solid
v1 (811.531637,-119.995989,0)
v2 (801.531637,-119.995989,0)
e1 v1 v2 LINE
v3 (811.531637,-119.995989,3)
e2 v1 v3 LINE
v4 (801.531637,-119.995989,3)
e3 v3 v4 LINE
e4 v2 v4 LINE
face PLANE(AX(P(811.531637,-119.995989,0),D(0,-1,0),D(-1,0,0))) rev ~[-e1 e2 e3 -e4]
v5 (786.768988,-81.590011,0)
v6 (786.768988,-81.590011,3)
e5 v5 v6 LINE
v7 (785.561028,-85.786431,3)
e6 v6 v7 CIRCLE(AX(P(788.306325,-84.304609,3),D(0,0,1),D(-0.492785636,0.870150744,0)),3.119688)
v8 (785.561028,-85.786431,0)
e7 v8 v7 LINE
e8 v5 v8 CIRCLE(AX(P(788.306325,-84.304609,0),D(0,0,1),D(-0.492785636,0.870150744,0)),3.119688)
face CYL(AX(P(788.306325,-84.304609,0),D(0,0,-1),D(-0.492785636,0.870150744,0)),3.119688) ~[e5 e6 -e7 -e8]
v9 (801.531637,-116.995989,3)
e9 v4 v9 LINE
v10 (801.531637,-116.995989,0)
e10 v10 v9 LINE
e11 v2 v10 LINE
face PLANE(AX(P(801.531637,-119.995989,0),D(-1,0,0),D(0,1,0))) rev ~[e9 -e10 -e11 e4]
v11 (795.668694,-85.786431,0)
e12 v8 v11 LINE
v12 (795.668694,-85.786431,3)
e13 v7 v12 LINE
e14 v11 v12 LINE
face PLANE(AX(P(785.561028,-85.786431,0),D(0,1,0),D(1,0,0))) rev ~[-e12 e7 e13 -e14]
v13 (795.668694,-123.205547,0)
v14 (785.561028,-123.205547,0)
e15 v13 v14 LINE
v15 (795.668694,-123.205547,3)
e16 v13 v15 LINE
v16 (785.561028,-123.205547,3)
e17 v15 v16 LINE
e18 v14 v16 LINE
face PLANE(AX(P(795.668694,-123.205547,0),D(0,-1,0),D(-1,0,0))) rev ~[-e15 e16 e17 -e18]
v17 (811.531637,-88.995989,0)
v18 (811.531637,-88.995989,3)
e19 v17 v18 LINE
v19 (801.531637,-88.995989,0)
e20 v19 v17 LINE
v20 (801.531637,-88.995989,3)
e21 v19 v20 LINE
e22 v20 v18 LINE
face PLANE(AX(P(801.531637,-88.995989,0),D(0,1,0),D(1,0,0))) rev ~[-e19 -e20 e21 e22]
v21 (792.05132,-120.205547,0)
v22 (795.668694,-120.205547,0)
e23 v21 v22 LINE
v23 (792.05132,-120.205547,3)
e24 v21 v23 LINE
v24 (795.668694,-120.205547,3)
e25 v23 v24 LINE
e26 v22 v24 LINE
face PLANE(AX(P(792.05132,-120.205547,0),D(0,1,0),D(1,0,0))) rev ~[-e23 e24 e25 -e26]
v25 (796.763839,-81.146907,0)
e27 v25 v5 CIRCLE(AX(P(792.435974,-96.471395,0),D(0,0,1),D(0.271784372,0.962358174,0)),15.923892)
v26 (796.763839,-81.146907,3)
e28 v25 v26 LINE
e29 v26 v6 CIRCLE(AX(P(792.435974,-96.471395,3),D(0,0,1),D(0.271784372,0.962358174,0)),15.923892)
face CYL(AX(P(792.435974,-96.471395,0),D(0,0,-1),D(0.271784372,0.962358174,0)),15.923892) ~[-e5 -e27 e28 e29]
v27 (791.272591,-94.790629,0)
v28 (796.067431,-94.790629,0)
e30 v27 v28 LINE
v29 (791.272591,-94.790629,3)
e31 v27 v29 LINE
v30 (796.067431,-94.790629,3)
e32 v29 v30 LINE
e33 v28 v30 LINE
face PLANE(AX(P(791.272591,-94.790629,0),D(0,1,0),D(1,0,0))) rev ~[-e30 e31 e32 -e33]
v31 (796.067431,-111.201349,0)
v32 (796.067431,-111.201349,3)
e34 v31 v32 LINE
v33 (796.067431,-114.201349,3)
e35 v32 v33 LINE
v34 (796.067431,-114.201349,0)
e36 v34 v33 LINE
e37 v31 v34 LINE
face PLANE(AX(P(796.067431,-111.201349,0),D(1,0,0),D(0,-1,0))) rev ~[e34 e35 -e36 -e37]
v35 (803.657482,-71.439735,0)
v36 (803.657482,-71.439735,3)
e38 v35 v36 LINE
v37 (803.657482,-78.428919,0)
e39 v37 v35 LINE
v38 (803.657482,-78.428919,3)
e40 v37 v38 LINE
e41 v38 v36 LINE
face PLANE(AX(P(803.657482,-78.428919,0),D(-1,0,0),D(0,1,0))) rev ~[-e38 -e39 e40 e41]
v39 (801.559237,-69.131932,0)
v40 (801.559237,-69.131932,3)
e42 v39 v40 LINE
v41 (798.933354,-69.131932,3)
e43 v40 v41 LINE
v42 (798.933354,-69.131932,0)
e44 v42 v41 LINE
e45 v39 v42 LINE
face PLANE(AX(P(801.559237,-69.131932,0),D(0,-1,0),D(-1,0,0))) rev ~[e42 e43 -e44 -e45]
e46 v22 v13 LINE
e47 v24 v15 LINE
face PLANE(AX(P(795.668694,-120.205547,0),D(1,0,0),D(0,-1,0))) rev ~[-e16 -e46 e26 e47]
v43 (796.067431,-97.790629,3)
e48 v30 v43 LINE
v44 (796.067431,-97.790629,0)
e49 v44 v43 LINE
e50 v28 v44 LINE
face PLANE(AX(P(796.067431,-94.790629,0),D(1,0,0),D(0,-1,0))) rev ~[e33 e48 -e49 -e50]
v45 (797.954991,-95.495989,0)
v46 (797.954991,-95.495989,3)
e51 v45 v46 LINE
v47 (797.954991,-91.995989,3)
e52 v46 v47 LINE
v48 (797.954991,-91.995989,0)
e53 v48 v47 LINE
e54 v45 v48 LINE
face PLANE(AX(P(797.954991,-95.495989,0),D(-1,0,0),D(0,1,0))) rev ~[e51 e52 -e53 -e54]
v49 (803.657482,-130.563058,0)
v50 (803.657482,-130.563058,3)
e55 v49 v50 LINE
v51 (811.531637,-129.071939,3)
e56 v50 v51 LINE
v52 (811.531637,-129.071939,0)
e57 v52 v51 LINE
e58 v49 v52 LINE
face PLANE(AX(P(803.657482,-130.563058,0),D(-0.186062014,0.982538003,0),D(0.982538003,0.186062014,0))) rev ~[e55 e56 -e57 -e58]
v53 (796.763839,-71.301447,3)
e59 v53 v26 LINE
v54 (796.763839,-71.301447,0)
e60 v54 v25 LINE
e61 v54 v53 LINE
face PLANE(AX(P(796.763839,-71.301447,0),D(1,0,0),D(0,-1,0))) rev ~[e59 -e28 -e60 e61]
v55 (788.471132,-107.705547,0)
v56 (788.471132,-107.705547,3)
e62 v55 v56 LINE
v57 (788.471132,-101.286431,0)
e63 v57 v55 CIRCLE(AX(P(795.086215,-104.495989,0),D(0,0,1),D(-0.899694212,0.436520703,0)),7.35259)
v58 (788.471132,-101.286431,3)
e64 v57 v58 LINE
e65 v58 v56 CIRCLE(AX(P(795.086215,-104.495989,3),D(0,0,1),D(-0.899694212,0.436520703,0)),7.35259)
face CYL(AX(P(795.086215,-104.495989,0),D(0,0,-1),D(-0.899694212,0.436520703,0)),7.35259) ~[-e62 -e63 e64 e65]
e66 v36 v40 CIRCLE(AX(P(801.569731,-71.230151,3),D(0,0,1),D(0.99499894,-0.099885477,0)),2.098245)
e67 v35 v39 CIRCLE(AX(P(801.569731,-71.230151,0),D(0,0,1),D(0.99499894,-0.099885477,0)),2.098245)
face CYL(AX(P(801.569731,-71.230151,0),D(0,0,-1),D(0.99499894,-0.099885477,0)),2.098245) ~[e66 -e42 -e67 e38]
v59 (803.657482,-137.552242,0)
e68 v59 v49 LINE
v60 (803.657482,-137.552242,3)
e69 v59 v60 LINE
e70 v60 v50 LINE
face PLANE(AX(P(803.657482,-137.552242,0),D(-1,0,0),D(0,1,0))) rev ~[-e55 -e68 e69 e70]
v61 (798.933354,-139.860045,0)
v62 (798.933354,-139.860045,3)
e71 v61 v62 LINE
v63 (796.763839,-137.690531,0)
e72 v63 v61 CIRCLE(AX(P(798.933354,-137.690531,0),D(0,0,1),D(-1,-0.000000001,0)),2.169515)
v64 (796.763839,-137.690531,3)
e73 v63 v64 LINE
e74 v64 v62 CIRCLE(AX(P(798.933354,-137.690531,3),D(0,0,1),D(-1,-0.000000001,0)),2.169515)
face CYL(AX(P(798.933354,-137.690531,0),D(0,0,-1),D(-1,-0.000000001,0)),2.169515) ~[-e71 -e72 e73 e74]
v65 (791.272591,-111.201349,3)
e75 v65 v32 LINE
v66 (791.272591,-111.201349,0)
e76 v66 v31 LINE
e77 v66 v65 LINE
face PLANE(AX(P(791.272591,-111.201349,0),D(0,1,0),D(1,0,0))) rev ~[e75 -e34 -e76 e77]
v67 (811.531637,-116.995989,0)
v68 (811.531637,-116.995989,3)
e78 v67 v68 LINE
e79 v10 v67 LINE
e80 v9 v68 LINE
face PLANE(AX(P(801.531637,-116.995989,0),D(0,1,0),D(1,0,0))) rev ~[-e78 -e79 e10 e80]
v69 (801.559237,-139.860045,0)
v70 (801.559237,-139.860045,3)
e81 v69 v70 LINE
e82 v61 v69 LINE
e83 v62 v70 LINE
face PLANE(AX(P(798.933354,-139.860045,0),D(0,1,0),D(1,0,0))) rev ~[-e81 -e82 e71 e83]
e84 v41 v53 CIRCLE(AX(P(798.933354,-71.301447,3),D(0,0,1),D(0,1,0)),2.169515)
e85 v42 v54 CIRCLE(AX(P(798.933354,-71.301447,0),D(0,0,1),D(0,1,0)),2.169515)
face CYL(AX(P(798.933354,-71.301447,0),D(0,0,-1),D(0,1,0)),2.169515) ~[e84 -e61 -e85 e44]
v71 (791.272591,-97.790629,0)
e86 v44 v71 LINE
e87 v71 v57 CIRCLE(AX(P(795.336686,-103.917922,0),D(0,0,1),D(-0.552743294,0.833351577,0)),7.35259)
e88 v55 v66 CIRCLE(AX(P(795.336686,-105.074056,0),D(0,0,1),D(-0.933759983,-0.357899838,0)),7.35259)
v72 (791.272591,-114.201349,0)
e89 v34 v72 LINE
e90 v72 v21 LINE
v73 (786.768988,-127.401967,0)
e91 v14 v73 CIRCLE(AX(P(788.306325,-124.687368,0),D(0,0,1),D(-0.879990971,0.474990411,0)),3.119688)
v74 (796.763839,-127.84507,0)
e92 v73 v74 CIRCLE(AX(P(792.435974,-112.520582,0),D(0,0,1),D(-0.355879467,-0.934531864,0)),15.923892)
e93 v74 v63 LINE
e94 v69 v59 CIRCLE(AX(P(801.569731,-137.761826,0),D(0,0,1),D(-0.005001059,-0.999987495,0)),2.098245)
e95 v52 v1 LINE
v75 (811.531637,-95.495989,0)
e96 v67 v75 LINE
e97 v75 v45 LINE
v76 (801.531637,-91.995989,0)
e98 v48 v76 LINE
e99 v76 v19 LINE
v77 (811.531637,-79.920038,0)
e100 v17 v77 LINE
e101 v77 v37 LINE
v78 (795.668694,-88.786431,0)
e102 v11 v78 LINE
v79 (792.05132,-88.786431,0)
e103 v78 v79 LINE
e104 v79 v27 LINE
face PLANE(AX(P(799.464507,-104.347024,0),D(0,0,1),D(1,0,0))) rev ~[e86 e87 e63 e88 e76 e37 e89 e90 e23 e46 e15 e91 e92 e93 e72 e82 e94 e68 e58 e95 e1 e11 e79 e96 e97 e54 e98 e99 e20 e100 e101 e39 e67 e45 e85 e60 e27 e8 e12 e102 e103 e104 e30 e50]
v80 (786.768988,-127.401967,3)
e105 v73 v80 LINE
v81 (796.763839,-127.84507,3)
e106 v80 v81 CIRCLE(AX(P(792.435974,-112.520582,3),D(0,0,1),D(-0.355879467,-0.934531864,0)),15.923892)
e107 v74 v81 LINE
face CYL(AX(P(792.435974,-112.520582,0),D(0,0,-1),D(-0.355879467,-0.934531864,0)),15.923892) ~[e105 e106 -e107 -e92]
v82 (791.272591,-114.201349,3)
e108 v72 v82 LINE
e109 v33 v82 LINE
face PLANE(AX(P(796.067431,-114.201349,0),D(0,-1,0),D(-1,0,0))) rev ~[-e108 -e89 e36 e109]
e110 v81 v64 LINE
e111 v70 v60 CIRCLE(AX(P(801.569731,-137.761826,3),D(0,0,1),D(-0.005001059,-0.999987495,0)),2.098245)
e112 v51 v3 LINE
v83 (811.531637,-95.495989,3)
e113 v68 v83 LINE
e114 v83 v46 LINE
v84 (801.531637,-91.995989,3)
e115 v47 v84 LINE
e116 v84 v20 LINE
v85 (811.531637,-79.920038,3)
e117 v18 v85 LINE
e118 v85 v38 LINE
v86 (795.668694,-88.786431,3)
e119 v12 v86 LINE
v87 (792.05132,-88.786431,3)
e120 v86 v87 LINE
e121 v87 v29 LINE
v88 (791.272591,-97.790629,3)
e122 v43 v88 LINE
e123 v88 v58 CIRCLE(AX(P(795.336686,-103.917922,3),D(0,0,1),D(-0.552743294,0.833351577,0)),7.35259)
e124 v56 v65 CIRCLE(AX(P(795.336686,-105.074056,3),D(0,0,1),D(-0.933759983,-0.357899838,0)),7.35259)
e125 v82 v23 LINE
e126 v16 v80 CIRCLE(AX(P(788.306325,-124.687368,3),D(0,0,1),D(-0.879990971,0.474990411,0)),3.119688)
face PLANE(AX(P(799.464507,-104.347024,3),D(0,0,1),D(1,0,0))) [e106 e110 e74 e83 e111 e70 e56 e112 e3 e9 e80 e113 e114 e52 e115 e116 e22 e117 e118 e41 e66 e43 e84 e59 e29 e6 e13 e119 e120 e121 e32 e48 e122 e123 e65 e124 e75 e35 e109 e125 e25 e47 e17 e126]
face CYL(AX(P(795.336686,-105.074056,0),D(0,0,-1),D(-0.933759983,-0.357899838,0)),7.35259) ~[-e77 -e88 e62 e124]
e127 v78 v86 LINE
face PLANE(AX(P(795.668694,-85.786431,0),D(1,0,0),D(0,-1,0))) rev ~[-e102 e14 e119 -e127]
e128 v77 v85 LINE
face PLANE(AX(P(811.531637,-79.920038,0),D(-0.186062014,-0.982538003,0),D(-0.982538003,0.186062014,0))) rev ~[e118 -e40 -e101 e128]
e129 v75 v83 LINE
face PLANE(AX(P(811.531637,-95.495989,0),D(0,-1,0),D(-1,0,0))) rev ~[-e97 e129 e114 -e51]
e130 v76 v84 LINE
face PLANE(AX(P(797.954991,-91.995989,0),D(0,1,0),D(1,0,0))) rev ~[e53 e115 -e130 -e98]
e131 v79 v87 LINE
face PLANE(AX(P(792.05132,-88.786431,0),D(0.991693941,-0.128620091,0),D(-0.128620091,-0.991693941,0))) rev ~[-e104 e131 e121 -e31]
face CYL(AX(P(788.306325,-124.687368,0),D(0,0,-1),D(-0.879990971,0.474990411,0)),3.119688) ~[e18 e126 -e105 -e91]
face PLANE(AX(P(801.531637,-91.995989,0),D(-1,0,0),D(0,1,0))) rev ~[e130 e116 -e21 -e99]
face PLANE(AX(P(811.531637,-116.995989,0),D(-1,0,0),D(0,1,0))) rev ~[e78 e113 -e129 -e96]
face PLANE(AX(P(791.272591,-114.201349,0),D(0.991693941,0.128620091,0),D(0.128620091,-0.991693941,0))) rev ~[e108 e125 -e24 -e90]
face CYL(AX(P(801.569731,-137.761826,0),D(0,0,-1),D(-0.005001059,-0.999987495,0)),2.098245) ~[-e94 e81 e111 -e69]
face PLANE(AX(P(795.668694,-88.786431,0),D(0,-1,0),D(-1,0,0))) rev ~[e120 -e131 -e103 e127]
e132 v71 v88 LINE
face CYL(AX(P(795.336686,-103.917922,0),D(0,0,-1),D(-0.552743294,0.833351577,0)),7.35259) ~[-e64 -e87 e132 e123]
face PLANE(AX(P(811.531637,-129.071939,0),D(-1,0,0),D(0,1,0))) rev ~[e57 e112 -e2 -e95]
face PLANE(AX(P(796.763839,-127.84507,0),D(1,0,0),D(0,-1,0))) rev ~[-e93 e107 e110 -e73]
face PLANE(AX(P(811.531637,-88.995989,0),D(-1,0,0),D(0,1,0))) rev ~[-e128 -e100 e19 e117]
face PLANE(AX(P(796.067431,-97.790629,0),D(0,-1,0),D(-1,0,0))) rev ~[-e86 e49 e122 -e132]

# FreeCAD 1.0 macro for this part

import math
import FreeCAD as App
import Part
import Sketcher

V = App.Vector
Q = App.Units.Quantity

doc = App.newDocument("Part")
body = doc.addObject("PartDesign::Body", "Body")

sketch1 = doc.addObject("Sketcher::SketchObject", "Sketch")
body.addObject(sketch1)
sketch1.AttachmentSupport = (doc.XY_Plane, [""])
sketch1.MapMode = "FlatFace"
sketch1.addGeometry([
    Part.LineSegment(V(796.1, -94.8, 0), V(796.1, -97.8, 0)),
    Part.LineSegment(V(796.1, -97.8, 0), V(791.3, -97.8, 0)),
    Part.ArcOfCircle(Part.Circle(V(795.3, -103.9, 0), V(0, 0, 1), 7.4), math.radians(124), math.radians(159)),
    Part.ArcOfCircle(Part.Circle(V(795.1, -104.5, 0), V(0, 0, 1), 7.4), math.radians(154), math.radians(206)),
    Part.ArcOfCircle(Part.Circle(V(795.3, -105.1, 0), V(0, 0, 1), 7.4), math.radians(-159), math.radians(-124)),
    Part.LineSegment(V(791.3, -111.2, 0), V(796.1, -111.2, 0)),
    Part.LineSegment(V(796.1, -111.2, 0), V(796.1, -114.2, 0)),
    Part.LineSegment(V(796.1, -114.2, 0), V(791.3, -114.2, 0)),
    Part.LineSegment(V(791.3, -114.2, 0), V(792.1, -120.2, 0)),
    Part.LineSegment(V(792.1, -120.2, 0), V(795.7, -120.2, 0)),
    Part.LineSegment(V(795.7, -120.2, 0), V(795.7, -123.2, 0)),
    Part.LineSegment(V(795.7, -123.2, 0), V(785.6, -123.2, 0)),
    Part.ArcOfCircle(Part.Circle(V(788.3, -124.7, 0), V(0, 0, 1), 3.1), math.radians(152), math.radians(240)),
    Part.ArcOfCircle(Part.Circle(V(792.4, -112.5, 0), V(0, 0, 1), 15.9), math.radians(-111), math.radians(-74)),
    Part.LineSegment(V(796.8, -127.8, 0), V(796.8, -137.7, 0)),
    Part.ArcOfCircle(Part.Circle(V(798.9, -137.7, 0), V(0, 0, 1), 2.2), math.radians(-180), math.radians(-90)),
    Part.LineSegment(V(798.9, -139.9, 0), V(801.6, -139.9, 0)),
    Part.ArcOfCircle(Part.Circle(V(801.6, -137.8, 0), V(0, 0, 1), 2.1), math.radians(-90), math.radians(6)),
    Part.LineSegment(V(803.7, -137.6, 0), V(803.7, -130.6, 0)),
    Part.LineSegment(V(803.7, -130.6, 0), V(811.5, -129.1, 0)),
    Part.LineSegment(V(811.5, -129.1, 0), V(811.5, -120, 0)),
    Part.LineSegment(V(811.5, -120, 0), V(801.5, -120, 0)),
    Part.LineSegment(V(801.5, -120, 0), V(801.5, -117, 0)),
    Part.LineSegment(V(801.5, -117, 0), V(811.5, -117, 0)),
    Part.LineSegment(V(811.5, -117, 0), V(811.5, -95.5, 0)),
    Part.LineSegment(V(811.5, -95.5, 0), V(798, -95.5, 0)),
    Part.LineSegment(V(798, -95.5, 0), V(798, -92, 0)),
    Part.LineSegment(V(798, -92, 0), V(801.5, -92, 0)),
    Part.LineSegment(V(801.5, -92, 0), V(801.5, -89, 0)),
    Part.LineSegment(V(801.5, -89, 0), V(811.5, -89, 0)),
    Part.LineSegment(V(811.5, -89, 0), V(811.5, -79.9, 0)),
    Part.LineSegment(V(811.5, -79.9, 0), V(803.7, -78.4, 0)),
    Part.LineSegment(V(803.7, -78.4, 0), V(803.7, -71.4, 0)),
    Part.ArcOfCircle(Part.Circle(V(801.6, -71.2, 0), V(0, 0, 1), 2.1), math.radians(-6), math.radians(90)),
    Part.LineSegment(V(801.6, -69.1, 0), V(798.9, -69.1, 0)),
    Part.ArcOfCircle(Part.Circle(V(798.9, -71.3, 0), V(0, 0, 1), 2.2), math.radians(90), math.radians(180)),
    Part.LineSegment(V(796.8, -71.3, 0), V(796.8, -81.1, 0)),
    Part.ArcOfCircle(Part.Circle(V(792.4, -96.5, 0), V(0, 0, 1), 15.9), math.radians(74), math.radians(111)),
    Part.ArcOfCircle(Part.Circle(V(788.3, -84.3, 0), V(0, 0, 1), 3.1), math.radians(120), math.radians(208)),
    Part.LineSegment(V(785.6, -85.8, 0), V(795.7, -85.8, 0)),
    Part.LineSegment(V(795.7, -85.8, 0), V(795.7, -88.8, 0)),
    Part.LineSegment(V(795.7, -88.8, 0), V(792.1, -88.8, 0)),
    Part.LineSegment(V(792.1, -88.8, 0), V(791.3, -94.8, 0)),
    Part.LineSegment(V(791.3, -94.8, 0), V(796.1, -94.8, 0)),
], False)
sketch1.addConstraint([
    Sketcher.Constraint("Coincident", 0, 2, 1, 1),
    Sketcher.Constraint("Coincident", 1, 2, 2, 1),
    Sketcher.Constraint("Coincident", 2, 2, 3, 1),
    Sketcher.Constraint("Coincident", 3, 2, 4, 1),
    Sketcher.Constraint("Coincident", 4, 2, 5, 1),
    Sketcher.Constraint("Coincident", 5, 2, 6, 1),
    Sketcher.Constraint("Coincident", 6, 2, 7, 1),
    Sketcher.Constraint("Coincident", 7, 2, 8, 1),
    Sketcher.Constraint("Coincident", 8, 2, 9, 1),
    Sketcher.Constraint("Coincident", 9, 2, 10, 1),
    Sketcher.Constraint("Coincident", 10, 2, 11, 1),
    Sketcher.Constraint("Coincident", 11, 2, 12, 1),
    Sketcher.Constraint("Coincident", 12, 2, 13, 1),
    Sketcher.Constraint("Coincident", 13, 2, 14, 1),
    Sketcher.Constraint("Tangent", 14, 2, 15, 1),
    Sketcher.Constraint("Tangent", 15, 2, 16, 1),
    Sketcher.Constraint("Coincident", 16, 2, 17, 1),
    Sketcher.Constraint("Coincident", 17, 2, 18, 1),
    Sketcher.Constraint("Coincident", 18, 2, 19, 1),
    Sketcher.Constraint("Coincident", 19, 2, 20, 1),
    Sketcher.Constraint("Coincident", 20, 2, 21, 1),
    Sketcher.Constraint("Coincident", 21, 2, 22, 1),
    Sketcher.Constraint("Coincident", 22, 2, 23, 1),
    Sketcher.Constraint("Coincident", 23, 2, 24, 1),
    Sketcher.Constraint("Coincident", 24, 2, 25, 1),
    Sketcher.Constraint("Coincident", 25, 2, 26, 1),
    Sketcher.Constraint("Coincident", 26, 2, 27, 1),
    Sketcher.Constraint("Coincident", 27, 2, 28, 1),
    Sketcher.Constraint("Coincident", 28, 2, 29, 1),
    Sketcher.Constraint("Coincident", 29, 2, 30, 1),
    Sketcher.Constraint("Coincident", 30, 2, 31, 1),
    Sketcher.Constraint("Coincident", 31, 2, 32, 1),
    Sketcher.Constraint("Coincident", 32, 2, 33, 1),
    Sketcher.Constraint("Coincident", 33, 2, 34, 1),
    Sketcher.Constraint("Tangent", 34, 2, 35, 1),
    Sketcher.Constraint("Tangent", 35, 2, 36, 1),
    Sketcher.Constraint("Coincident", 36, 2, 37, 1),
    Sketcher.Constraint("Coincident", 37, 2, 38, 1),
    Sketcher.Constraint("Coincident", 38, 2, 39, 1),
    Sketcher.Constraint("Coincident", 39, 2, 40, 1),
    Sketcher.Constraint("Coincident", 40, 2, 41, 1),
    Sketcher.Constraint("Coincident", 41, 2, 42, 1),
    Sketcher.Constraint("Coincident", 42, 2, 43, 1),
    Sketcher.Constraint("Coincident", 43, 2, 0, 1),
    Sketcher.Constraint("Vertical", 0),
    Sketcher.Constraint("Horizontal", 1),
    Sketcher.Constraint("Horizontal", 5),
    Sketcher.Constraint("Vertical", 6),
    Sketcher.Constraint("Horizontal", 7),
    Sketcher.Constraint("Horizontal", 9),
    Sketcher.Constraint("Vertical", 10),
    Sketcher.Constraint("Horizontal", 11),
    Sketcher.Constraint("Vertical", 14),
    Sketcher.Constraint("Horizontal", 16),
    Sketcher.Constraint("Vertical", 18),
    Sketcher.Constraint("Vertical", 20),
    Sketcher.Constraint("Horizontal", 21),
    Sketcher.Constraint("Vertical", 22),
    Sketcher.Constraint("Horizontal", 23),
    Sketcher.Constraint("Vertical", 24),
    Sketcher.Constraint("Horizontal", 25),
    Sketcher.Constraint("Vertical", 26),
    Sketcher.Constraint("Horizontal", 27),
    Sketcher.Constraint("Vertical", 28),
    Sketcher.Constraint("Horizontal", 29),
    Sketcher.Constraint("Vertical", 30),
    Sketcher.Constraint("Vertical", 32),
    Sketcher.Constraint("Horizontal", 34),
    Sketcher.Constraint("Vertical", 36),
    Sketcher.Constraint("Horizontal", 39),
    Sketcher.Constraint("Vertical", 40),
    Sketcher.Constraint("Horizontal", 41),
    Sketcher.Constraint("Horizontal", 43),
    Sketcher.Constraint("Equal", 2, 3),
    Sketcher.Constraint("Equal", 3, 4),
    Sketcher.Constraint("Equal", 17, 33),
    Sketcher.Constraint("Equal", 15, 35),
    Sketcher.Constraint("Equal", 13, 37),
    Sketcher.Constraint("Equal", 12, 38),
    Sketcher.Constraint("Vertical", 2, 3, 4, 3),
    Sketcher.Constraint("Vertical", 17, 3, 33, 3),
    Sketcher.Constraint("Vertical", 15, 3, 35, 3),
    Sketcher.Constraint("Vertical", 13, 3, 37, 3),
    Sketcher.Constraint("Vertical", 12, 3, 38, 3),
    Sketcher.Constraint("Vertical", 2, 2, 3, 2),
    Sketcher.Constraint("Vertical", 1, 2, 4, 2),
    Sketcher.Constraint("Vertical", 0, 2, 5, 2),
    Sketcher.Constraint("Vertical", 4, 2, 7, 2),
    Sketcher.Constraint("Vertical", 20, 2, 23, 2),
    Sketcher.Constraint("Vertical", 22, 2, 27, 2),
    Sketcher.Constraint("Vertical", 24, 2, 29, 2),
    Sketcher.Constraint("Vertical", 18, 2, 31, 2),
    Sketcher.Constraint("Vertical", 16, 2, 33, 2),
    Sketcher.Constraint("Vertical", 12, 2, 37, 2),
    Sketcher.Constraint("Vertical", 11, 2, 38, 2),
    Sketcher.Constraint("Vertical", 10, 2, 39, 2),
    Sketcher.Constraint("Vertical", 8, 2, 41, 2),
    Sketcher.Constraint("Vertical", 7, 2, 42, 2),
    Sketcher.Constraint("Equal", 0, 6),
    Sketcher.Constraint("Equal", 6, 10),
    Sketcher.Constraint("Equal", 10, 22),
    Sketcher.Constraint("Equal", 22, 28),
    Sketcher.Constraint("Equal", 20, 30),
    Sketcher.Constraint("Equal", 18, 32),
    Sketcher.Constraint("Equal", 14, 36),
    Sketcher.Constraint("Equal", 28, 40),
    Sketcher.Constraint("Equal", 19, 31),
    Sketcher.Constraint("Equal", 8, 42),
    Sketcher.Constraint("DistanceX", 21, 2, 21, 1, Q("10 mm")),
    Sketcher.Constraint("DistanceY", 0, 2, 0, 1, Q("3 mm")),
    Sketcher.Constraint("DistanceY", 24, 1, 24, 2, Q("21.5 mm")),
    Sketcher.Constraint("DistanceY", 26, 1, 26, 2, Q("3.5 mm")),
    Sketcher.Constraint("Radius", 2, Q("7.35259 mm")),
    Sketcher.Constraint("Radius", 13, Q("15.923892 mm")),
    Sketcher.Constraint("Radius", 12, Q("3.119688 mm")),
    Sketcher.Constraint("Radius", 15, Q("2.169515 mm")),
    Sketcher.Constraint("Radius", 17, Q("2.098245 mm")),
    Sketcher.Constraint("DistanceX", 1, 2, 1, 1, Q("4.79484 mm")),
    Sketcher.Constraint("DistanceY", 14, 2, 14, 1, Q("9.845461 mm")),
    Sketcher.Constraint("DistanceY", 20, 1, 20, 2, Q("9.07595 mm")),
    Sketcher.Constraint("DistanceY", 2, 2, 1, 2, Q("3.495802 mm")),
    Sketcher.Constraint("DistanceY", 8, 2, 7, 2, Q("6.004198 mm")),
    Sketcher.Constraint("DistanceY", 12, 2, 12, 3, Q("2.714598 mm")),
    Sketcher.Constraint("DistanceY", 13, 2, 12, 3, Q("3.157702 mm")),
    Sketcher.Constraint("DistanceY", 15, 2, 10, 2, Q("16.654499 mm")),
    Sketcher.Constraint("DistanceX", 14, 2, 16, 2, Q("4.795398 mm")),
    Sketcher.Constraint("DistanceX", 16, 2, 19, 2, Q("9.972399 mm")),
    Sketcher.Constraint("DistanceX", 1, 2, 25, 2, Q("6.6824 mm")),
    Sketcher.Constraint("DistanceX", 9, 1, 9, 2, Q("3.617374 mm")),
    Sketcher.Constraint("DistanceX", 11, 2, 11, 1, Q("10.107666 mm")),
    Sketcher.Constraint("DistanceX", 25, 2, 25, 1, Q("13.576646 mm")),
    Sketcher.Constraint("DistanceY", 18, 1, 18, 2, Q("6.989184 mm")),
    Sketcher.Constraint("DistanceY", 2, 3, -1, 1, Q("103.917922 mm")),
    Sketcher.Constraint("DistanceY", 3, 3, -1, 1, Q("104.495989 mm")),
    Sketcher.Constraint("DistanceY", 12, 3, -1, 1, Q("124.687368 mm")),
    Sketcher.Constraint("DistanceX", -1, 1, 17, 3, Q("801.569731 mm")),
    Sketcher.Constraint("DistanceX", -1, 1, 0, 2, Q("796.067431 mm")),
    Sketcher.Constraint("DistanceX", -1, 1, 8, 2, Q("792.05132 mm")),
    Sketcher.Constraint("DistanceY", 31, 2, -1, 1, Q("78.428919 mm")),
])
pad1 = doc.addObject("PartDesign::Pad", "Pad")
body.addObject(pad1)
pad1.Profile = sketch1
pad1.Length = 3

doc.recompute()
